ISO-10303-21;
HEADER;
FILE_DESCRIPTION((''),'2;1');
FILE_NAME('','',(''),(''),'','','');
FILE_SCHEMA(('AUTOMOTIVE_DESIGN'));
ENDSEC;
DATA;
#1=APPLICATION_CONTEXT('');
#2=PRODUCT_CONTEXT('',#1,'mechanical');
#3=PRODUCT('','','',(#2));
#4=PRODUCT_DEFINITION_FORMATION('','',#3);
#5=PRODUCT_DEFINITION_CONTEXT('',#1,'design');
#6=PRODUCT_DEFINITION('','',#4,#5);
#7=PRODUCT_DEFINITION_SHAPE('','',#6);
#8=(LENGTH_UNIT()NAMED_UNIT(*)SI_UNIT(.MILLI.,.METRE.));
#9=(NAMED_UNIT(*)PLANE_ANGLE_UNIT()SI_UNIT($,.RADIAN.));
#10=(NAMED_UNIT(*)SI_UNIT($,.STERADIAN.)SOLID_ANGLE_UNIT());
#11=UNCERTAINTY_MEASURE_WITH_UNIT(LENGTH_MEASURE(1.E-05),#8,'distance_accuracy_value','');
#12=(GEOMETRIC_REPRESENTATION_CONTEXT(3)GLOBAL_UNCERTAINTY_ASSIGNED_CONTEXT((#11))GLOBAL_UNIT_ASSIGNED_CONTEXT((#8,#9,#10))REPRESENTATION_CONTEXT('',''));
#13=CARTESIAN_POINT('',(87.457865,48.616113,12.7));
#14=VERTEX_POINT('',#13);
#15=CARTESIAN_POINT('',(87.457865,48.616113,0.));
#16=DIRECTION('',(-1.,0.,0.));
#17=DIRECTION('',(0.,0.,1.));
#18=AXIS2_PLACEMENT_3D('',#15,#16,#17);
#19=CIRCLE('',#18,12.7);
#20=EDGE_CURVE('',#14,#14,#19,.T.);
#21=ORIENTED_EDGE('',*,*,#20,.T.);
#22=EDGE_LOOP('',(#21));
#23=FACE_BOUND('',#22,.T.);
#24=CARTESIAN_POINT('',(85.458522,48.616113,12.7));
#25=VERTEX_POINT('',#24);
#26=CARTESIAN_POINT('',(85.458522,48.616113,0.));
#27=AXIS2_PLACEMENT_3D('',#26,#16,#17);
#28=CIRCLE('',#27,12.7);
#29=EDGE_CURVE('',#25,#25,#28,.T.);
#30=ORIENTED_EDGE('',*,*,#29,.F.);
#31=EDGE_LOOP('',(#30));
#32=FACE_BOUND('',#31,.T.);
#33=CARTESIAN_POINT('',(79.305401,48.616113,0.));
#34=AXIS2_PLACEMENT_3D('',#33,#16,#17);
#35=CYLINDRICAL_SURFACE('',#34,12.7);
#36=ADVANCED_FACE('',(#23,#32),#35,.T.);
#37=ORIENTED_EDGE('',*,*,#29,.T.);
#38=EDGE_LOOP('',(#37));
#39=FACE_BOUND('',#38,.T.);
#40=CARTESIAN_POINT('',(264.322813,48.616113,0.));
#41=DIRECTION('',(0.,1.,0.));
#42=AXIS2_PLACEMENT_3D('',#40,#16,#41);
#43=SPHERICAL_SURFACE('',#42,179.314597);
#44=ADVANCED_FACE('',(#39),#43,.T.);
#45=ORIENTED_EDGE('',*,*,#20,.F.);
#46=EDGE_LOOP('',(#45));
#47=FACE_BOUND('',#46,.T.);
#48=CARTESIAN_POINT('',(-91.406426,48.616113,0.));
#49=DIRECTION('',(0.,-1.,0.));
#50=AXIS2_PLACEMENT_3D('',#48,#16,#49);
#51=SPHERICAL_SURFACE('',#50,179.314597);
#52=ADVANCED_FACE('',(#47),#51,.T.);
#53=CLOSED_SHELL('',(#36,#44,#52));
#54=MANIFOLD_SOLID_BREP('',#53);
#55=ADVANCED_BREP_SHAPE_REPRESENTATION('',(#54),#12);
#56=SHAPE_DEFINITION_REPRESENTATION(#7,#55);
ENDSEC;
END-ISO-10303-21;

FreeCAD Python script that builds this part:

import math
import FreeCAD as App
import Part
import Sketcher
from FreeCAD import Vector
Q = App.Units.Quantity

doc = App.newDocument("Part")
body = doc.addObject("PartDesign::Body", "Body")

sketch1 = body.newObject("Sketcher::SketchObject", "Sketch")
sketch1.AttachmentSupport = (doc.getObject("XY_Plane"), [""])
sketch1.MapMode = "FlatFace"
sketch1.addGeometry([
    Part.LineSegment(Vector(87.5, 61.3, 0), Vector(85.5, 61.3, 0)),
    Part.ArcOfCircle(Part.Circle(Vector(264.3, 48.6, 0), Vector(0, 0, 1), 179.3), math.radians(175.94), math.radians(180)),
    Part.LineSegment(Vector(85, 48.6, 0), Vector(87.9, 48.6, 0)),
    Part.ArcOfCircle(Part.Circle(Vector(-91.4, 48.6, 0), Vector(0, 0, 1), 179.3), math.radians(0), math.radians(4.06)),
], False)
sketch1.addGeometry(Part.LineSegment(Vector(-91.4, 48.6, 0), Vector(264.3, 48.6, 0)), True)
sketch1.addConstraint([
    Sketcher.Constraint("Coincident", 0, 2, 1, 1),
    Sketcher.Constraint("Coincident", 1, 2, 2, 1),
    Sketcher.Constraint("Coincident", 2, 2, 3, 1),
    Sketcher.Constraint("Coincident", 3, 2, 0, 1),
    Sketcher.Constraint("Horizontal", 0),
    Sketcher.Constraint("Horizontal", 2),
    Sketcher.Constraint("Horizontal", 4),
    Sketcher.Constraint("Coincident", 4, 1, 3, 3),
    Sketcher.Constraint("Coincident", 4, 2, 1, 3),
    Sketcher.Constraint("Equal", 1, 3),
    Sketcher.Constraint("Horizontal", 3, 3, 1, 2),
    Sketcher.Constraint("DistanceY", 3, 3, 0, 2, Q("12.7 mm")),
    Sketcher.Constraint("Radius", 1, Q("179.314596 mm")),
    Sketcher.Constraint("DistanceX", 4, 1, 4, 2, Q("355.729239 mm")),
    Sketcher.Constraint("DistanceX", -1, 1, 2, 2, Q("87.908171 mm")),
    Sketcher.Constraint("DistanceY", -1, 1, 1, 3, Q("48.616113 mm")),
])
revolution = body.newObject("PartDesign::Revolution", "Revolution")
revolution.Profile = sketch1
revolution.ReferenceAxis = (sketch1, ["Axis0"])
revolution.Angle = 360

doc.recompute()
